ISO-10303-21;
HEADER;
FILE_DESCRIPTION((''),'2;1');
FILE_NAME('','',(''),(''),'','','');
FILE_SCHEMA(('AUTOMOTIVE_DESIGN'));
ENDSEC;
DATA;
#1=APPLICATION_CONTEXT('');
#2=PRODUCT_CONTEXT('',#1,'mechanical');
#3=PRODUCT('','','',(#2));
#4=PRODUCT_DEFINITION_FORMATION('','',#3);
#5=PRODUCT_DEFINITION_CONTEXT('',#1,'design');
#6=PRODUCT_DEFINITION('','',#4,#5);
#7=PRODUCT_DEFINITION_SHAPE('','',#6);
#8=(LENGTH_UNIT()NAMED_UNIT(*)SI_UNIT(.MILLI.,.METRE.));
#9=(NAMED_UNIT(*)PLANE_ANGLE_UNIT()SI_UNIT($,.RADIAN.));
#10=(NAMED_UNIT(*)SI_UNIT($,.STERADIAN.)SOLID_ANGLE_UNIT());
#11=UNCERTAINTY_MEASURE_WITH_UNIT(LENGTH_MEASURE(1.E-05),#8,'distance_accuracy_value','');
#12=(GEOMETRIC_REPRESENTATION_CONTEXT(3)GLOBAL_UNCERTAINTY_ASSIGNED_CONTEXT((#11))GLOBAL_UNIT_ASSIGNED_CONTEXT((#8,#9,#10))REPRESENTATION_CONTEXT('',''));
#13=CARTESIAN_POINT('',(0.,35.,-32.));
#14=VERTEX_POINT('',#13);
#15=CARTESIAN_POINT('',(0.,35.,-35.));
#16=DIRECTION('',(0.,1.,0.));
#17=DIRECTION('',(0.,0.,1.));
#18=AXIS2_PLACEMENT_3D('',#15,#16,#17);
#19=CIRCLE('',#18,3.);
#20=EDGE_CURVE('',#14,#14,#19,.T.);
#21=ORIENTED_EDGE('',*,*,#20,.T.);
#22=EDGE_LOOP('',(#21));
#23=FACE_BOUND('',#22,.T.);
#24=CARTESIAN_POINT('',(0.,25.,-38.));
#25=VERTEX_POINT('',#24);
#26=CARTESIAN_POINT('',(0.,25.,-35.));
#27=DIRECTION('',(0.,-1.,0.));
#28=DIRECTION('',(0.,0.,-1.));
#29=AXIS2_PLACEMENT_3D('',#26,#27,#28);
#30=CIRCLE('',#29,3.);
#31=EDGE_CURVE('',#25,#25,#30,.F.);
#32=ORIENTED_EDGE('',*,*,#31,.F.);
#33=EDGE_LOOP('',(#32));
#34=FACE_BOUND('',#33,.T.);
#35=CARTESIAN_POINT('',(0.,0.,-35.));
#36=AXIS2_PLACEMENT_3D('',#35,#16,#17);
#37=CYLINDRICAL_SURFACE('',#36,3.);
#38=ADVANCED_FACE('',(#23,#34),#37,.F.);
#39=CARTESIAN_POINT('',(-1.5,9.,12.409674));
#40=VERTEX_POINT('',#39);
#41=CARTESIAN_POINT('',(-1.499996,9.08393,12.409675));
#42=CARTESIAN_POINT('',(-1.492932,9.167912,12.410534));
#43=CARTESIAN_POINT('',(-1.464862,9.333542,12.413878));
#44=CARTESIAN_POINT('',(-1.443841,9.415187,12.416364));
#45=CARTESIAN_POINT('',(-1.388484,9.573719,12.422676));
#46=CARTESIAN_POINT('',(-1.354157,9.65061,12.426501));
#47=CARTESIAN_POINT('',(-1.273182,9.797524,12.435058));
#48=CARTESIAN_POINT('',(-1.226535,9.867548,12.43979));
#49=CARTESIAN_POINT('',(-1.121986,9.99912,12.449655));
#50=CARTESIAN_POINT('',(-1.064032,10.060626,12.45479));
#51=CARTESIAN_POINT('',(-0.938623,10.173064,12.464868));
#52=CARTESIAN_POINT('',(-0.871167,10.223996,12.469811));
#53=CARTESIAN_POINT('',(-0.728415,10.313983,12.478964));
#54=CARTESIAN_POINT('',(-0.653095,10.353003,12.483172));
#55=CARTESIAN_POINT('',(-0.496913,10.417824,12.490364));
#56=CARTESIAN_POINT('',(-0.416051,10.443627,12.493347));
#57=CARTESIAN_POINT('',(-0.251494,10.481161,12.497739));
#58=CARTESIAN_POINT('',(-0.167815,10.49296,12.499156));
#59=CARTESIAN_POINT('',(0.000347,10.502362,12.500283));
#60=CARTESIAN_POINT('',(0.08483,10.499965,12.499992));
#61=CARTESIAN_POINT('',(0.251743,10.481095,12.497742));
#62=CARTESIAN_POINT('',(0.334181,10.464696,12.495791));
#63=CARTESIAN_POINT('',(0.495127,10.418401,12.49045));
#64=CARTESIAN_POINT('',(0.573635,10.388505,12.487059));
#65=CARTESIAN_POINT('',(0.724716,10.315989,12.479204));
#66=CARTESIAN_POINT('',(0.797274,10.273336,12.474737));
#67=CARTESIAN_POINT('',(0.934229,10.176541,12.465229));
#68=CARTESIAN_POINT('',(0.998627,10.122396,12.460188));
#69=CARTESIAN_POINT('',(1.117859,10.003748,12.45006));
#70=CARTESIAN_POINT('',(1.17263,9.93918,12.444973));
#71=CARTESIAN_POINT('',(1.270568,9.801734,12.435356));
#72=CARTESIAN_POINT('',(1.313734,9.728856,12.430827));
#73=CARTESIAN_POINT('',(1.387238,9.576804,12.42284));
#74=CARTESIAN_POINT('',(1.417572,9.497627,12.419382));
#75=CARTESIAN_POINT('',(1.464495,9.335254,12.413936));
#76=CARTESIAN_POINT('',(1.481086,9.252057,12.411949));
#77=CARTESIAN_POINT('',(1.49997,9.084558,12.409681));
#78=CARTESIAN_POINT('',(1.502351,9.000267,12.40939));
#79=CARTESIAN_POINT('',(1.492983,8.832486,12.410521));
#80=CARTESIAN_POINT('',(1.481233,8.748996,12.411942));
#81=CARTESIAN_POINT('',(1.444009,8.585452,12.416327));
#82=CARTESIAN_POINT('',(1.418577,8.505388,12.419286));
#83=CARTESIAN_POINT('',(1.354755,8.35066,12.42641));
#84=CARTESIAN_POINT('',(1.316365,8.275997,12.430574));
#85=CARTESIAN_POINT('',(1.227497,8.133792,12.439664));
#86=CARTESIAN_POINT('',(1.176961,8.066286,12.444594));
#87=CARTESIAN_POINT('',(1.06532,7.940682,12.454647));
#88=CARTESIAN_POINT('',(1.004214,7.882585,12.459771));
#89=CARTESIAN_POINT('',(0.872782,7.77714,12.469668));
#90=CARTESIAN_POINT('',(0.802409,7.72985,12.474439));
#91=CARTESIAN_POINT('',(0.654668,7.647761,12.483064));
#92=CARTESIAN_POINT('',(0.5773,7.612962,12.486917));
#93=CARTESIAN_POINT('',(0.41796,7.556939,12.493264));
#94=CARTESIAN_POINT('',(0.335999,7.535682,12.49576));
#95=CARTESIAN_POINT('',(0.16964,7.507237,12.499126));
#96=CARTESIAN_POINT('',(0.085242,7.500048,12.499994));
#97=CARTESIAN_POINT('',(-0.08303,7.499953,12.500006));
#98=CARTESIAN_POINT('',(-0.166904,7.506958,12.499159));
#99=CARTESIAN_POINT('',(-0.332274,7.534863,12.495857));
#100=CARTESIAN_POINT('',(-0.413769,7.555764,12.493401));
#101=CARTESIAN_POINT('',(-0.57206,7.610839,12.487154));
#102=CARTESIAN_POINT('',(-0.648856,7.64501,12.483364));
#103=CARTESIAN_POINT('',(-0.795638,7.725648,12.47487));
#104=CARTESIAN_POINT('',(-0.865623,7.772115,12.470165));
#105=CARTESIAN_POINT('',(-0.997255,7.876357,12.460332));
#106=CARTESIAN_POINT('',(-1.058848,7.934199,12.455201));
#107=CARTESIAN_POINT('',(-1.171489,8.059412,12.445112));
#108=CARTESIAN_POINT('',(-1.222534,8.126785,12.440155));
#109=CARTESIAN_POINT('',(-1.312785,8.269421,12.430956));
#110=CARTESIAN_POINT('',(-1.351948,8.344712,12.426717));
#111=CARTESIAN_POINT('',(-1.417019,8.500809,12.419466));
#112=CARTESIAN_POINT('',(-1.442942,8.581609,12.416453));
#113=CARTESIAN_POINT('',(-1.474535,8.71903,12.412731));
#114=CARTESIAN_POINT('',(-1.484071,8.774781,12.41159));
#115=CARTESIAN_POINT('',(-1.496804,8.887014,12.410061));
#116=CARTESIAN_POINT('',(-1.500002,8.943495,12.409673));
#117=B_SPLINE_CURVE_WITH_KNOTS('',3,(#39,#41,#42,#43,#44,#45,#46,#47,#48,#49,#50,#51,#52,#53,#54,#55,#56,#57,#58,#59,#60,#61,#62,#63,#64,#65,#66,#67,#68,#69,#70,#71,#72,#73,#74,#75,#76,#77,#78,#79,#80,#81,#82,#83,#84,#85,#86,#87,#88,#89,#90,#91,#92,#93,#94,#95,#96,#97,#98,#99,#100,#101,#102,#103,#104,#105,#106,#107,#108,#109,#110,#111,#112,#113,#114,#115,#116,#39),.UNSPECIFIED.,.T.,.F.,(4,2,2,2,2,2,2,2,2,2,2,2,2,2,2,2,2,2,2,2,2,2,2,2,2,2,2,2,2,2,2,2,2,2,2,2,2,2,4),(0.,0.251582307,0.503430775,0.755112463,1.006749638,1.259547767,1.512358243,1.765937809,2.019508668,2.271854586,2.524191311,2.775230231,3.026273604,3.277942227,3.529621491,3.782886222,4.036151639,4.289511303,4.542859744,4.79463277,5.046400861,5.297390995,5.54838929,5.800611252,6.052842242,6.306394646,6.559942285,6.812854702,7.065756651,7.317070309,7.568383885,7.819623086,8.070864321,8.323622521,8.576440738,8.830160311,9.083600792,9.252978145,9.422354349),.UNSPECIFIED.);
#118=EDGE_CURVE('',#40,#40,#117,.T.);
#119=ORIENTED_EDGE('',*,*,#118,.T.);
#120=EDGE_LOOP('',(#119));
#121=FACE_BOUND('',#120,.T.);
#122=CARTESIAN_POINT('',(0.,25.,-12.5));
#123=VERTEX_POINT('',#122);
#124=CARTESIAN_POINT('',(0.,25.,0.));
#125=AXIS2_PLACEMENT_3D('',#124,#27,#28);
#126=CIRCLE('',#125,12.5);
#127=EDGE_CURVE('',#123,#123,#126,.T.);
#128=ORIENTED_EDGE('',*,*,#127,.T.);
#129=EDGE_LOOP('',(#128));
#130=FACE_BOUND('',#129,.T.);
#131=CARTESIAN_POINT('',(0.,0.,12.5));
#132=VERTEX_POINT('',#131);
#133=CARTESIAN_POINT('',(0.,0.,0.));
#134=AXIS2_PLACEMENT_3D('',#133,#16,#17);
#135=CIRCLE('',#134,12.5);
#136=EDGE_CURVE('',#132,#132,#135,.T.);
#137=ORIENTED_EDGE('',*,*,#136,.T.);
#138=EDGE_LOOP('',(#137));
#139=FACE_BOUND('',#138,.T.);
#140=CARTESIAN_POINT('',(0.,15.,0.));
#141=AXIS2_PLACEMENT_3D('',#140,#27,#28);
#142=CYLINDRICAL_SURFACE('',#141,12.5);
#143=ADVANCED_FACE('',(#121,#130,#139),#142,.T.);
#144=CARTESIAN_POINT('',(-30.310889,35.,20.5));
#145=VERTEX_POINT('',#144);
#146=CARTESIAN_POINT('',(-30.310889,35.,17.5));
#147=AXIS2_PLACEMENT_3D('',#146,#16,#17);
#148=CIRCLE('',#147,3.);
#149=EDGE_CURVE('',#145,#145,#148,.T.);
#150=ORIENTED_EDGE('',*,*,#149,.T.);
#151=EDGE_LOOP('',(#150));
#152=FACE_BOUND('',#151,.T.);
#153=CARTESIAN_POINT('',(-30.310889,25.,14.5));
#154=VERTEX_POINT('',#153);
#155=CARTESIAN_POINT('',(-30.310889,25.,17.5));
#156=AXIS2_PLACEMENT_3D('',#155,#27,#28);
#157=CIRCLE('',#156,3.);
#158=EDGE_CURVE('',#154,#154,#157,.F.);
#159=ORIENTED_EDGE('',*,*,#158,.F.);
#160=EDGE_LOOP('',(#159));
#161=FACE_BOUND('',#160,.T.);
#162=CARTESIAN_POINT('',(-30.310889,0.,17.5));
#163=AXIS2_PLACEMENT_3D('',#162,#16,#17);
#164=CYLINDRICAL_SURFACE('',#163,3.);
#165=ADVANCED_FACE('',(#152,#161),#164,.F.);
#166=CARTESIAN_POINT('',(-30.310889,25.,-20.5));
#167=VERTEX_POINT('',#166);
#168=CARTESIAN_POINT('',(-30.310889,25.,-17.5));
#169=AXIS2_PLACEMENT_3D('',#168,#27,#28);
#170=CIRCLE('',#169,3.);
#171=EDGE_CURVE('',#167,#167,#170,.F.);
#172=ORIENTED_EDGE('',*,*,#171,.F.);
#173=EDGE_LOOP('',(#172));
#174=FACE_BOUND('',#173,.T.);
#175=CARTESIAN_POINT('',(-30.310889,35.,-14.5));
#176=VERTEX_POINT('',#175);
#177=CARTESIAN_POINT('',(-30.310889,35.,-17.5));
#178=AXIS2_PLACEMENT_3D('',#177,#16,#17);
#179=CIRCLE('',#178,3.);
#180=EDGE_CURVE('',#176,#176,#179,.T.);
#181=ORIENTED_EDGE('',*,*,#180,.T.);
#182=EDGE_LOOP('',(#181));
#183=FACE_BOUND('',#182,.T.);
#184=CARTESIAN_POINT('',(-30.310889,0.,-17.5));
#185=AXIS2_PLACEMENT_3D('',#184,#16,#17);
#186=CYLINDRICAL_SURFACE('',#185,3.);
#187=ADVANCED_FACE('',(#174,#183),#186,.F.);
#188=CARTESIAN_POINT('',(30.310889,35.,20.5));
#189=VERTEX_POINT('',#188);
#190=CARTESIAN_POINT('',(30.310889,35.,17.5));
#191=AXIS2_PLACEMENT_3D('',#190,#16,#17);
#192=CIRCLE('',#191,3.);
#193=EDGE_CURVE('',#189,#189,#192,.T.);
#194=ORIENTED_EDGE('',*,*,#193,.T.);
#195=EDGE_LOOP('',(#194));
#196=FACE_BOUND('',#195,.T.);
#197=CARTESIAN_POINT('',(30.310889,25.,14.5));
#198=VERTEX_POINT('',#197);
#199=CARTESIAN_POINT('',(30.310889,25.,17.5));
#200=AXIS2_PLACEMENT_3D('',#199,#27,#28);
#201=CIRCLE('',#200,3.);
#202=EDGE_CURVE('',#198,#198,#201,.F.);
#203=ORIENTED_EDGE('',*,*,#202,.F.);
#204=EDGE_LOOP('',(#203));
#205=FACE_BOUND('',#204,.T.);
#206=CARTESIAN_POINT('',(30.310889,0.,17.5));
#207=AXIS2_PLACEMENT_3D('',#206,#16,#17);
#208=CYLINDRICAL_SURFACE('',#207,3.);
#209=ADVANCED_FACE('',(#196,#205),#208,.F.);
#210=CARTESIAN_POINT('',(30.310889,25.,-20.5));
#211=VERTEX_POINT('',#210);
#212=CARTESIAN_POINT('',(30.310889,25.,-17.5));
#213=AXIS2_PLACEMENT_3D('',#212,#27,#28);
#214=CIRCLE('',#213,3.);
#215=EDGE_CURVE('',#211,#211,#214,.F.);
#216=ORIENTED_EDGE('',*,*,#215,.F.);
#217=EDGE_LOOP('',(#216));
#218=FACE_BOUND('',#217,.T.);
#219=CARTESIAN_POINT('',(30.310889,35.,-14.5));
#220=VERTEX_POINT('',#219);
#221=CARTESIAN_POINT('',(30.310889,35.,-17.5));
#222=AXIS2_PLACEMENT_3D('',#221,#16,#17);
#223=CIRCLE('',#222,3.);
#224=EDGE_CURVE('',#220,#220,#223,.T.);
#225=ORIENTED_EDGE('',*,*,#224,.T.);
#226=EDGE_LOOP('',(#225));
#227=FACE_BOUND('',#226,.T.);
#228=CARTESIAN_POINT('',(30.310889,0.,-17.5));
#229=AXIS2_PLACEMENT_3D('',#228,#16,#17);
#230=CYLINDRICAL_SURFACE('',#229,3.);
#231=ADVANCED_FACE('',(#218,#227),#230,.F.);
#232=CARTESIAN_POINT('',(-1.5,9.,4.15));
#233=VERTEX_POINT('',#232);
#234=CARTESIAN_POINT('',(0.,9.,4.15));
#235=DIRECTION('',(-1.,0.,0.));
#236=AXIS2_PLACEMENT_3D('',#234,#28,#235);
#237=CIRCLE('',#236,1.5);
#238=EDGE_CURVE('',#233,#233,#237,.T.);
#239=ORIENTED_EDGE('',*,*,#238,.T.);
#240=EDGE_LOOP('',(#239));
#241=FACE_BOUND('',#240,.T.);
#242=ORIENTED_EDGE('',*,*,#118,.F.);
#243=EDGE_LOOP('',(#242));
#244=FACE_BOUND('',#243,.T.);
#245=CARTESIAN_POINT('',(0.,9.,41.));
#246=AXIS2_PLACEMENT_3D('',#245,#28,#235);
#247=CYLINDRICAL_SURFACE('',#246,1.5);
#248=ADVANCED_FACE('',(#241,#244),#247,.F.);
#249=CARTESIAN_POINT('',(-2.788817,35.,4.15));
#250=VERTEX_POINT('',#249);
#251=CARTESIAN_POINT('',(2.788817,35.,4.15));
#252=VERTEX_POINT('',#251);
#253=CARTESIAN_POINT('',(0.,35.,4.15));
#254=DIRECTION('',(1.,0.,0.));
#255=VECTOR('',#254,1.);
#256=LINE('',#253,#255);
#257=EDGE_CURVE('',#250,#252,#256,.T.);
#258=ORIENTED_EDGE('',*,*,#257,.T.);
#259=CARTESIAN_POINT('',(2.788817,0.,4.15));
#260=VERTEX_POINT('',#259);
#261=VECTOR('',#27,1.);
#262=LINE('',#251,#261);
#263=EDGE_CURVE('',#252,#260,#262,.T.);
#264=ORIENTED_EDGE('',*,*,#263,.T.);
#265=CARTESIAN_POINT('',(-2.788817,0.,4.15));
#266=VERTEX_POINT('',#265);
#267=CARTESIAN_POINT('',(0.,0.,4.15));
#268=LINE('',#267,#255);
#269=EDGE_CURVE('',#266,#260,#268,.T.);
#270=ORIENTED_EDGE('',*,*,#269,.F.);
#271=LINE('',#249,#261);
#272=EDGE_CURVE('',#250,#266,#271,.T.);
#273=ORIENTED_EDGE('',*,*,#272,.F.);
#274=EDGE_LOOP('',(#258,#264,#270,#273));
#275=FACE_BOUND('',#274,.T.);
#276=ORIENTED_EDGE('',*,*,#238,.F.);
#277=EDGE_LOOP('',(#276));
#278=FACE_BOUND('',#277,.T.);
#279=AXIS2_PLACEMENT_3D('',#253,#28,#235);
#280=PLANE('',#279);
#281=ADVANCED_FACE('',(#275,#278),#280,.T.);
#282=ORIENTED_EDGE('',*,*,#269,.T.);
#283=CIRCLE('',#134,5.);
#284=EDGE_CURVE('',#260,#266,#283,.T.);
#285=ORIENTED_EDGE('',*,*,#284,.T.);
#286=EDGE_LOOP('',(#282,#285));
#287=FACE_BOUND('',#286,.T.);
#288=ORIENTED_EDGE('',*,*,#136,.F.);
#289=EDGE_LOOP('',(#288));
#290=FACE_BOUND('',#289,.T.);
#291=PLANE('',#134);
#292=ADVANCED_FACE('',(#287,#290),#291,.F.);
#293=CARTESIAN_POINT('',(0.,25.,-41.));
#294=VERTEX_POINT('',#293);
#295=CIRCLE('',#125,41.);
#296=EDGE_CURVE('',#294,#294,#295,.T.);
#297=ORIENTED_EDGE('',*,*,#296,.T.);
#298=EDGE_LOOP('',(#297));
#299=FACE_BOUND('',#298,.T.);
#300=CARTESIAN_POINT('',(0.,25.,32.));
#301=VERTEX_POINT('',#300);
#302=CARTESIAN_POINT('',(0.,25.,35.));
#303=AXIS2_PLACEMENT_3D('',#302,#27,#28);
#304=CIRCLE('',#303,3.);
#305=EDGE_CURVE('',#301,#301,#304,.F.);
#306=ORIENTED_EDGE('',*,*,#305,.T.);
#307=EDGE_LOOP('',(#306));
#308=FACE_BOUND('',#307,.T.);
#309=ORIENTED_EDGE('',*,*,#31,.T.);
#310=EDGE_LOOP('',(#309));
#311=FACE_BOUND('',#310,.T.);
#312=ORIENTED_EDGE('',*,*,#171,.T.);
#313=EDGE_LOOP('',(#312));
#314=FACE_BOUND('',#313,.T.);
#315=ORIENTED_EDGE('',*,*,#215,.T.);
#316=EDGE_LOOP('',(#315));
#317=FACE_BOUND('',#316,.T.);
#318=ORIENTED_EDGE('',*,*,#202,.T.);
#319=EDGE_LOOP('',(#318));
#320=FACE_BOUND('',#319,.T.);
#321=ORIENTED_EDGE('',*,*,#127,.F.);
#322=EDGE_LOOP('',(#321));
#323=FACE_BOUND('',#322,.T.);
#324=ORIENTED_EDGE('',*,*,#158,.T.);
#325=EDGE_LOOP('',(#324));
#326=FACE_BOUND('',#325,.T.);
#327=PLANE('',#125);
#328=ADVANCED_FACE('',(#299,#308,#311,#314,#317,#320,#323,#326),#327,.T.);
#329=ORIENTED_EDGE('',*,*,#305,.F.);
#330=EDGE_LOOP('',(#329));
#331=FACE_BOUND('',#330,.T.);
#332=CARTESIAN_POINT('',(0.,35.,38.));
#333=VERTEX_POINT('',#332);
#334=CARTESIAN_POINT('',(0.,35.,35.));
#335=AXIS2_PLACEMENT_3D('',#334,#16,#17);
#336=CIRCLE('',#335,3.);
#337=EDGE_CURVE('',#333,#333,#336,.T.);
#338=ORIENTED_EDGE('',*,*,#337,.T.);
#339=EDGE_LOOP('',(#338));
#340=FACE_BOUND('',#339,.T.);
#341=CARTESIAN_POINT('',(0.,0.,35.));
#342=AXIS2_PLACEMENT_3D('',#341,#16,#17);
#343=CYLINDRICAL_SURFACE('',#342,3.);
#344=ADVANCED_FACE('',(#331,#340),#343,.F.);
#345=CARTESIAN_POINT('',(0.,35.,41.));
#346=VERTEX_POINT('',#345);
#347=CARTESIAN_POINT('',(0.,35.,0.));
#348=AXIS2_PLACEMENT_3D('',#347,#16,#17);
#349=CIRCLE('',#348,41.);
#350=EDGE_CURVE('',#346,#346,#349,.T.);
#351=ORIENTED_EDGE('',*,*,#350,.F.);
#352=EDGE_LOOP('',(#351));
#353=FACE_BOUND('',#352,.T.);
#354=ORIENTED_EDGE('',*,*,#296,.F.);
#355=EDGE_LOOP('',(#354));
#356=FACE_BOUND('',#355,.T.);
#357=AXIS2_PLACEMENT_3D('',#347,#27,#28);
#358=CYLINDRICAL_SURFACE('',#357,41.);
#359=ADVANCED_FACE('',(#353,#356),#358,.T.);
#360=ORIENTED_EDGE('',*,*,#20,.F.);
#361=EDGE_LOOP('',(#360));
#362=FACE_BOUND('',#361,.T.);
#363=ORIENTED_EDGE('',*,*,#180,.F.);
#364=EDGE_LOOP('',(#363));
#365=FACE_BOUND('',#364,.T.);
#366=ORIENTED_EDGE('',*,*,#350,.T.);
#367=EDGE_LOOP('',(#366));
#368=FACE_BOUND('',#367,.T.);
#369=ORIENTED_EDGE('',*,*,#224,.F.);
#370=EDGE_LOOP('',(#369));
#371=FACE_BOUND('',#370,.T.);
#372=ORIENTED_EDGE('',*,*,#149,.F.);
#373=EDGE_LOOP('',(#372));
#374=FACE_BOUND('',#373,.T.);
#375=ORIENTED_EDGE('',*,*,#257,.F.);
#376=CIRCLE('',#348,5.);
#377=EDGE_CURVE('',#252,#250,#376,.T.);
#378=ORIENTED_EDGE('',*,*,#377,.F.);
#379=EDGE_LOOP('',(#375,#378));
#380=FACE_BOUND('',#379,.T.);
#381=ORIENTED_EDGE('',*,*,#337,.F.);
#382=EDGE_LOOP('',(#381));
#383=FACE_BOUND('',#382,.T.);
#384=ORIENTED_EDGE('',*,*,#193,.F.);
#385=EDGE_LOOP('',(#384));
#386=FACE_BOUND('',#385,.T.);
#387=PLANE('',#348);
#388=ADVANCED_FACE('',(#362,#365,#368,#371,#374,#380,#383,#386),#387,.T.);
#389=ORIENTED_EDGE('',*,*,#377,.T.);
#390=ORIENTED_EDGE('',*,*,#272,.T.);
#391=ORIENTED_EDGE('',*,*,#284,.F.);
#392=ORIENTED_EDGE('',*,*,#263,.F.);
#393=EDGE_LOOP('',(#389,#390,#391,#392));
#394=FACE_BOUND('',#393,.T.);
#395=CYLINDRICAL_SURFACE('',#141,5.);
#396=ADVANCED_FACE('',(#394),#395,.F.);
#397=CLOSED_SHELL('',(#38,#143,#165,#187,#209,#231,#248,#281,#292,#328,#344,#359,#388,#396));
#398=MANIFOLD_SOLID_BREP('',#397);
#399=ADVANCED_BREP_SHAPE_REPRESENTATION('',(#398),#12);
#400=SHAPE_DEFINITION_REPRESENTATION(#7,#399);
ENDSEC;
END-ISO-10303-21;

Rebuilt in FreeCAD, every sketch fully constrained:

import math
import FreeCAD as App
import Part
import Sketcher

doc = App.newDocument("Part")
body = doc.addObject("PartDesign::Body", "Body")

sketch1 = body.newObject("Sketcher::SketchObject", "Sketch")
sketch1.AttachmentSupport = (doc.getObject("XZ_Plane"), [""])
sketch1.MapMode = "FlatFace"
sketch1.addGeometry(Part.Circle(App.Vector(0, 0, 0), App.Vector(0, 0, 1), 12), False)
sketch1.addGeometry(Part.Circle(App.Vector(0, 0, 0), App.Vector(0, 0, 1), 5), False)
sketch1.addConstraint(Sketcher.Constraint("Coincident", 0, 3, -1, 1))
sketch1.addConstraint(Sketcher.Constraint("Coincident", 1, 3, -1, 1))
sketch1.addConstraint(Sketcher.Constraint("Diameter", 0, 25.0))
sketch1.addConstraint(Sketcher.Constraint("Diameter", 1, 10.0))
pad1 = body.newObject("PartDesign::Pad", "Pad")
pad1.Profile = sketch1
pad1.Length = 15
pad1.Reversed = True

sketch2 = body.newObject("Sketcher::SketchObject", "Sketch001")
sketch2.AttachmentSupport = (doc.getObject("XZ_Plane"), [""])
sketch2.MapMode = "FlatFace"
sketch2.AttachmentOffset = App.Placement(App.Vector(0, 0, -15), App.Rotation())
sketch2.addGeometry(Part.Circle(App.Vector(0, 0, 0), App.Vector(0, 0, 1), 41), False)
sketch2.addGeometry(Part.Circle(App.Vector(0, 0, 0), App.Vector(0, 0, 1), 5), False)
sketch2.addConstraint(Sketcher.Constraint("Coincident", 0, 3, -1, 1))
sketch2.addConstraint(Sketcher.Constraint("Coincident", 1, 3, -1, 1))
sketch2.addConstraint(Sketcher.Constraint("Diameter", 0, 82.0))
sketch2.addConstraint(Sketcher.Constraint("Diameter", 1, 10.0))
pad2 = body.newObject("PartDesign::Pad", "Pad001")
pad2.Profile = sketch2
pad2.Length = 20
pad2.Reversed = True

sketch3 = body.newObject("Sketcher::SketchObject", "Sketch002")
sketch3.AttachmentSupport = (doc.getObject("XZ_Plane"), [""])
sketch3.MapMode = "FlatFace"
sketch3.AttachmentOffset = App.Placement(App.Vector(0, 0, -35), App.Rotation())
sketch3.addGeometry(Part.Circle(App.Vector(0, -35, 0), App.Vector(0, 0, 1), 3), False)
sketch3.addGeometry(Part.Circle(App.Vector(30.3, -17.5, 0), App.Vector(0, 0, 1), 3), False)
sketch3.addGeometry(Part.Circle(App.Vector(30.3, 17.5, 0), App.Vector(0, 0, 1), 3), False)
sketch3.addGeometry(Part.Circle(App.Vector(0, 35, 0), App.Vector(0, 0, 1), 3), False)
sketch3.addGeometry(Part.Circle(App.Vector(-30.3, 17.5, 0), App.Vector(0, 0, 1), 3), False)
sketch3.addGeometry(Part.Circle(App.Vector(-30.3, -17.5, 0), App.Vector(0, 0, 1), 3), False)
sketch3.addConstraint(Sketcher.Constraint("Equal", 0, 1))
sketch3.addConstraint(Sketcher.Constraint("Equal", 1, 2))
sketch3.addConstraint(Sketcher.Constraint("Equal", 2, 3))
sketch3.addConstraint(Sketcher.Constraint("Equal", 3, 4))
sketch3.addConstraint(Sketcher.Constraint("Equal", 4, 5))
sketch3.addConstraint(Sketcher.Constraint("Symmetric", 0, 3, 3, 3, -1, 1))
sketch3.addConstraint(Sketcher.Constraint("Symmetric", 1, 3, 4, 3, -1, 1))
sketch3.addConstraint(Sketcher.Constraint("Symmetric", 2, 3, 5, 3, -1, 1))
sketch3.addConstraint(Sketcher.Constraint("Symmetric", 2, 3, 4, 3, -2))
sketch3.addConstraint(Sketcher.Constraint("PointOnObject", 0, 3, -2))
sketch3.addConstraint(Sketcher.Constraint("Diameter", 0, 6.0))
sketch3.addConstraint(Sketcher.Constraint("DistanceY", 0, 3, -1, 1, 35.0))
sketch3.addConstraint(Sketcher.Constraint("DistanceY", 1, 3, 2, 3, 35.0))
sketch3.addConstraint(Sketcher.Constraint("DistanceX", -1, 1, 1, 3, 30.310889))
pocket1 = body.newObject("PartDesign::Pocket", "Pocket")
pocket1.Profile = sketch3
pocket1.Type = "ThroughAll"
pocket1.Reversed = True

sketch4 = body.newObject("Sketcher::SketchObject", "Sketch003")
sketch4.AttachmentSupport = (doc.getObject("XZ_Plane"), [""])
sketch4.MapMode = "FlatFace"
sketch4.addGeometry(Part.ArcOfCircle(Part.Circle(App.Vector(0, 0, 0), App.Vector(0, 0, 1), 5), math.radians(54), math.radians(126)), False)
sketch4.addGeometry(Part.LineSegment(App.Vector(-3, 4, 0), App.Vector(3, 4, 0)), False)
sketch4.addConstraint(Sketcher.Constraint("Coincident", 0, 1, 1, 2))
sketch4.addConstraint(Sketcher.Constraint("Coincident", 1, 1, 0, 2))
sketch4.addConstraint(Sketcher.Constraint("Horizontal", 1))
sketch4.addConstraint(Sketcher.Constraint("Coincident", 0, 3, -1, 1))
sketch4.addConstraint(Sketcher.Constraint("DistanceY", -1, 1, 0, 1, 4.15))
sketch4.addConstraint(Sketcher.Constraint("Radius", 0, 5.160836))
pad3 = body.newObject("PartDesign::Pad", "Pad002")
pad3.Profile = sketch4
pad3.Length = 35
pad3.Reversed = True

sketch5 = body.newObject("Sketcher::SketchObject", "Sketch004")
sketch5.AttachmentSupport = (doc.getObject("XY_Plane"), [""])
sketch5.MapMode = "FlatFace"
sketch5.AttachmentOffset = App.Placement(App.Vector(0, 0, 4.15), App.Rotation())
sketch5.addGeometry(Part.Circle(App.Vector(0, 9, 0), App.Vector(0, 0, 1), 1.5), False)
sketch5.addConstraint(Sketcher.Constraint("PointOnObject", 0, 3, -2))
sketch5.addConstraint(Sketcher.Constraint("Diameter", 0, 3.0))
sketch5.addConstraint(Sketcher.Constraint("DistanceY", -1, 1, 0, 3, 9.0))
pocket2 = body.newObject("PartDesign::Pocket", "Pocket001")
pocket2.Profile = sketch5
pocket2.Type = "ThroughAll"
pocket2.Reversed = True

sketch6 = body.newObject("Sketcher::SketchObject", "Sketch005")
sketch6.AttachmentSupport = (doc.getObject("XZ_Plane"), [""])
sketch6.MapMode = "FlatFace"
sketch6.AttachmentOffset = App.Placement(App.Vector(0, 0, -15), App.Rotation())
sketch6.addGeometry(Part.Circle(App.Vector(0, 0, 0), App.Vector(0, 0, 1), 41), False)
sketch6.addGeometry(Part.Circle(App.Vector(0, 0, 0), App.Vector(0, 0, 1), 12), False)
sketch6.addConstraint(Sketcher.Constraint("Coincident", 0, 3, -1, 1))
sketch6.addConstraint(Sketcher.Constraint("Coincident", 1, 3, -1, 1))
sketch6.addConstraint(Sketcher.Constraint("Diameter", 0, 82.0))
sketch6.addConstraint(Sketcher.Constraint("Diameter", 1, 25.0))
pocket3 = body.newObject("PartDesign::Pocket", "Pocket002")
pocket3.Profile = sketch6
pocket3.Length = 10

doc.recompute()
